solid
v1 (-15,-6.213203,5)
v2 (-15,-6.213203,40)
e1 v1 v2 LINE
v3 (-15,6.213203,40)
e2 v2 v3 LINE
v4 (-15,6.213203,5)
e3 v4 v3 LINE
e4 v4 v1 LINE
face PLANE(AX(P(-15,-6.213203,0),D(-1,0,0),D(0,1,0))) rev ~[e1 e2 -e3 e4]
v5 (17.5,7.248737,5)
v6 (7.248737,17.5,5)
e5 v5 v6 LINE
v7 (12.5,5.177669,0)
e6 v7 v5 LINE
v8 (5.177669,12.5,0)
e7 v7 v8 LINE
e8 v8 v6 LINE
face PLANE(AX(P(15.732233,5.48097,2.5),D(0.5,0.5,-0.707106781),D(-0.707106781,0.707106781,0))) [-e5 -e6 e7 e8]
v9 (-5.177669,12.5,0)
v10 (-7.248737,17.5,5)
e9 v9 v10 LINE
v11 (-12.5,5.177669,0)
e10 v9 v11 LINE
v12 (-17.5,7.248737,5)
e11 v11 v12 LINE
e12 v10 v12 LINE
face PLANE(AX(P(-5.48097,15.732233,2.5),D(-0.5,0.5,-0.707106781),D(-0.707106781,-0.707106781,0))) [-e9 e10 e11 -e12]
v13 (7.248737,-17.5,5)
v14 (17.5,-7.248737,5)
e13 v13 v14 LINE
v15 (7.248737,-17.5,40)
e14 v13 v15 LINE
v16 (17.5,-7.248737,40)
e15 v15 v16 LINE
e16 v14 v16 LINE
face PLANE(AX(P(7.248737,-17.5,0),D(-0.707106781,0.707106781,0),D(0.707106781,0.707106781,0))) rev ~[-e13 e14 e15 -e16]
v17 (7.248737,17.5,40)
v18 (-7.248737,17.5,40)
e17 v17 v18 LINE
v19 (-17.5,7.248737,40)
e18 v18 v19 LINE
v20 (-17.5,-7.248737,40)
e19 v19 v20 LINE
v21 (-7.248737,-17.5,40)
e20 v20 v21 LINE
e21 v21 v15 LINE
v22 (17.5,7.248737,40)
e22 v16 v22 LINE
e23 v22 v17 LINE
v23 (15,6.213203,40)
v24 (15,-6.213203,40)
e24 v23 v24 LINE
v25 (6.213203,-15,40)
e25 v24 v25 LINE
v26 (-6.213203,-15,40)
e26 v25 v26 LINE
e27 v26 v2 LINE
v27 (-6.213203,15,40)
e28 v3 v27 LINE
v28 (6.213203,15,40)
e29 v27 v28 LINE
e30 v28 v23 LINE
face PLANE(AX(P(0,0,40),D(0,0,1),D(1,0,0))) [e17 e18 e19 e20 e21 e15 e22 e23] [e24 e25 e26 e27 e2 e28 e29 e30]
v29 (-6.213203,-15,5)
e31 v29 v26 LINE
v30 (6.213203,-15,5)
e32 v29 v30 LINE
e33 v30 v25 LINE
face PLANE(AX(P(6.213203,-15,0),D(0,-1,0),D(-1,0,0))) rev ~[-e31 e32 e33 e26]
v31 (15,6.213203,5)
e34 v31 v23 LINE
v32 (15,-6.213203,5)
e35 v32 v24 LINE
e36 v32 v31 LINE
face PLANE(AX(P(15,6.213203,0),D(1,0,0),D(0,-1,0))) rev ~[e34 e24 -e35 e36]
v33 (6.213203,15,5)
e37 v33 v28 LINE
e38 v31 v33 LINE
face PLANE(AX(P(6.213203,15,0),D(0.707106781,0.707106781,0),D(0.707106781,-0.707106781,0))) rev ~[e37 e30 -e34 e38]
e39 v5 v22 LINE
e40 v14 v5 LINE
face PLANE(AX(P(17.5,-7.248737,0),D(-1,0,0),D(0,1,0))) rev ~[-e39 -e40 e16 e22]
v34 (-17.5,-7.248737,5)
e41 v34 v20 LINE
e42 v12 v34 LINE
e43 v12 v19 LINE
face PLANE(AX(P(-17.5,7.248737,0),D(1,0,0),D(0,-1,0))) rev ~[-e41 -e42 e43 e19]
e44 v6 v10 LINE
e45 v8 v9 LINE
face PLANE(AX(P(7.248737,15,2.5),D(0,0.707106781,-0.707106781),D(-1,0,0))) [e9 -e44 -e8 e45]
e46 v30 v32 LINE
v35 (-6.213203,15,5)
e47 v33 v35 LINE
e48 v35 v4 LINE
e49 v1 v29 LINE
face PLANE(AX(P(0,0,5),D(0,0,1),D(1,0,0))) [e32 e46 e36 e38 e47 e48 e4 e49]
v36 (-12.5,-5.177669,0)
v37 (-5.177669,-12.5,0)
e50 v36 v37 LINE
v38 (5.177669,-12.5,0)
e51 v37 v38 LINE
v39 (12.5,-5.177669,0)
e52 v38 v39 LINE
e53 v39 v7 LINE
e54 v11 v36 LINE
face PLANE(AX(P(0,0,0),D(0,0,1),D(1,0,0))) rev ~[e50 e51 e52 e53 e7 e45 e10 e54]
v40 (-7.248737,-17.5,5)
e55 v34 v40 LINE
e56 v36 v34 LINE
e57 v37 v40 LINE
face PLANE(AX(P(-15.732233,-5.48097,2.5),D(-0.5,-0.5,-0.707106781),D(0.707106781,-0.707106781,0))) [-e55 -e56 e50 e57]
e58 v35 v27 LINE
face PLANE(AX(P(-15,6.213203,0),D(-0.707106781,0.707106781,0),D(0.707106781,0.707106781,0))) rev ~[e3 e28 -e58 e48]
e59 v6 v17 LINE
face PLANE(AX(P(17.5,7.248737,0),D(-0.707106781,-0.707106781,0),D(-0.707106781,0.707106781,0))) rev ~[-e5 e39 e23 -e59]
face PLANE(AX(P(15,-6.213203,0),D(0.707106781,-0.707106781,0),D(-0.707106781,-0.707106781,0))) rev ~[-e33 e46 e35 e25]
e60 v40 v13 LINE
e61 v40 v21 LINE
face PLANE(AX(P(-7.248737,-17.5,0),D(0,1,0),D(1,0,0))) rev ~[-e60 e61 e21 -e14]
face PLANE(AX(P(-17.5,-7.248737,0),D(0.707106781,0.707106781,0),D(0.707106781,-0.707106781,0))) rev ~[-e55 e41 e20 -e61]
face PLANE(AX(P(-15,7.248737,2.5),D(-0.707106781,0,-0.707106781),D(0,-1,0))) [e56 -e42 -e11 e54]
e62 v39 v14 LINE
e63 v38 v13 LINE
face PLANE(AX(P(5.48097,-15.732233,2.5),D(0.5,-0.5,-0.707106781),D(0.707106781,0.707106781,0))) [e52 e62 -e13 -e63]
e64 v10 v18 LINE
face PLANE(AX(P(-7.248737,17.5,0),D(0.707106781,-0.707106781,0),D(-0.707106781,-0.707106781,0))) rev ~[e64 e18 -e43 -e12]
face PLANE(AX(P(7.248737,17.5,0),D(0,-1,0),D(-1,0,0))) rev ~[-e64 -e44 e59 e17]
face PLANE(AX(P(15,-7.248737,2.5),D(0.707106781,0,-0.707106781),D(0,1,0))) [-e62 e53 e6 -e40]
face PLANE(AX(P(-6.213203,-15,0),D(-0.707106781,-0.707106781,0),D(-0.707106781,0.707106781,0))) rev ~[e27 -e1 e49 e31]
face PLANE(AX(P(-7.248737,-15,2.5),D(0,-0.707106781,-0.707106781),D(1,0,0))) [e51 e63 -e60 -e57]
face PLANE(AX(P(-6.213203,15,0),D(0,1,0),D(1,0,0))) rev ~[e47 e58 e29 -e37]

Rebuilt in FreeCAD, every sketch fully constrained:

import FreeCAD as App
import Part
import Sketcher

V = App.Vector


def edges_at(feature, points):
    """Names of the edges that pass closest to the given points."""
    edges = feature.Shape.Edges
    near = lambda p: min(range(len(edges)), key=lambda i: edges[i].distToShape(Part.Vertex(*p))[0])
    return sorted({f"Edge{near(p) + 1}" for p in points})


def add_polygon(sketch, points):
    """Adds a closed chain of lines whose ends are joined by coincident constraints."""
    first, n = sketch.GeometryCount, len(points)
    for a, b in zip(points, points[1:] + points[:1]):
        sketch.addGeometry(Part.LineSegment(App.Vector(*a, 0), App.Vector(*b, 0)), False)
    for i in range(n):
        sketch.addConstraint(Sketcher.Constraint("Coincident", first + i, 2, first + (i + 1) % n, 1))

doc = App.newDocument("Part")
body = doc.addObject("PartDesign::Body", "Body")

sketch1 = body.newObject("Sketcher::SketchObject", "Sketch")
sketch1.AttachmentSupport = (doc.getObject("XY_Plane"), [""])
sketch1.MapMode = "FlatFace"
add_polygon(sketch1, [(-18, 7), (-18, -7), (-7, -18), (7, -18), (18, -7), (18, 7), (7, 18), (-7, 18)])
add_polygon(sketch1, [(6, -15), (-6, -15), (-15, -6), (-15, 6), (-6, 15), (6, 15), (15, 6), (15, -6)])
sketch1.addConstraint([
    Sketcher.Constraint("Vertical", 0),
    Sketcher.Constraint("Horizontal", 2),
    Sketcher.Constraint("Vertical", 4),
    Sketcher.Constraint("Horizontal", 6),
    Sketcher.Constraint("Horizontal", 8),
    Sketcher.Constraint("Vertical", 10),
    Sketcher.Constraint("Horizontal", 12),
    Sketcher.Constraint("Vertical", 14),
    Sketcher.Constraint("Symmetric", 0, 2, 4, 2, -1, 1),
    Sketcher.Constraint("Symmetric", 1, 2, 5, 2, -1, 1),
    Sketcher.Constraint("Symmetric", 8, 2, 12, 2, -1, 1),
    Sketcher.Constraint("Symmetric", 9, 2, 13, 2, -1, 1),
    Sketcher.Constraint("Perpendicular", 1, 3),
    Sketcher.Constraint("Perpendicular", 5, 7),
    Sketcher.Constraint("Perpendicular", 7, 9),
    Sketcher.Constraint("Perpendicular", 9, 11),
    Sketcher.Constraint("Perpendicular", 13, 15),
    Sketcher.Constraint("Horizontal", 0, 2, 3, 2),
    Sketcher.Constraint("Horizontal", 4, 2, 7, 2),
    Sketcher.Constraint("Horizontal", 10, 2, 13, 2),
    Sketcher.Constraint("Horizontal", 9, 2, 14, 2),
    Sketcher.Constraint("Vertical", 2, 2, 5, 2),
    Sketcher.Constraint("Equal", 6, 0),
    Sketcher.Constraint("Equal", 12, 10),
    Sketcher.Constraint("DistanceY", 8, 2, -1, 1, 15.0),
    Sketcher.Constraint("DistanceX", 0, 2, 3, 2, 35.0),
    Sketcher.Constraint("DistanceX", 2, 1, 2, 2, 14.497474),
    Sketcher.Constraint("DistanceX", 8, 2, 8, 1, 12.426406),
])
pad1 = body.newObject("PartDesign::Pad", "Pad")
pad1.Profile = sketch1
pad1.Length = 40

sketch2 = body.newObject("Sketcher::SketchObject", "Sketch001")
sketch2.AttachmentSupport = (doc.getObject("XY_Plane"), [""])
sketch2.MapMode = "FlatFace"
add_polygon(sketch2, [(-15, 6), (-15, -6), (-6, -15), (6, -15), (15, -6), (15, 6), (6, 15), (-6, 15)])
sketch2.addConstraint([
    Sketcher.Constraint("Vertical", 0),
    Sketcher.Constraint("Horizontal", 2),
    Sketcher.Constraint("Vertical", 4),
    Sketcher.Constraint("Horizontal", 6),
    Sketcher.Constraint("Symmetric", 0, 2, 4, 2, -1, 1),
    Sketcher.Constraint("Symmetric", 1, 2, 5, 2, -1, 1),
    Sketcher.Constraint("Perpendicular", 1, 3),
    Sketcher.Constraint("Perpendicular", 5, 7),
    Sketcher.Constraint("Horizontal", 0, 2, 3, 2),
    Sketcher.Constraint("Horizontal", 4, 2, 7, 2),
    Sketcher.Constraint("Vertical", 2, 2, 5, 2),
    Sketcher.Constraint("Equal", 6, 0),
    Sketcher.Constraint("DistanceX", 0, 2, -1, 1, 15.0),
    Sketcher.Constraint("DistanceX", 2, 1, 2, 2, 12.426406),
])
pad2 = body.newObject("PartDesign::Pad", "Pad001")
pad2.Profile = sketch2
pad2.Length = 5
doc.recompute()

chamfer = body.newObject("PartDesign::Chamfer", "Chamfer")
chamfer.Base = (pad2, edges_at(pad2, [
    (12.374, -12.374, 0),
    (0, -17.5, 0),
    (17.5, 0, 0),
    (12.374, 12.374, 0),
    (0, 17.5, 0),
    (-12.374, 12.374, 0),
    (-17.5, 0, 0),
    (-12.374, -12.374, 0),
]))
chamfer.Size = 5

doc.recompute()
